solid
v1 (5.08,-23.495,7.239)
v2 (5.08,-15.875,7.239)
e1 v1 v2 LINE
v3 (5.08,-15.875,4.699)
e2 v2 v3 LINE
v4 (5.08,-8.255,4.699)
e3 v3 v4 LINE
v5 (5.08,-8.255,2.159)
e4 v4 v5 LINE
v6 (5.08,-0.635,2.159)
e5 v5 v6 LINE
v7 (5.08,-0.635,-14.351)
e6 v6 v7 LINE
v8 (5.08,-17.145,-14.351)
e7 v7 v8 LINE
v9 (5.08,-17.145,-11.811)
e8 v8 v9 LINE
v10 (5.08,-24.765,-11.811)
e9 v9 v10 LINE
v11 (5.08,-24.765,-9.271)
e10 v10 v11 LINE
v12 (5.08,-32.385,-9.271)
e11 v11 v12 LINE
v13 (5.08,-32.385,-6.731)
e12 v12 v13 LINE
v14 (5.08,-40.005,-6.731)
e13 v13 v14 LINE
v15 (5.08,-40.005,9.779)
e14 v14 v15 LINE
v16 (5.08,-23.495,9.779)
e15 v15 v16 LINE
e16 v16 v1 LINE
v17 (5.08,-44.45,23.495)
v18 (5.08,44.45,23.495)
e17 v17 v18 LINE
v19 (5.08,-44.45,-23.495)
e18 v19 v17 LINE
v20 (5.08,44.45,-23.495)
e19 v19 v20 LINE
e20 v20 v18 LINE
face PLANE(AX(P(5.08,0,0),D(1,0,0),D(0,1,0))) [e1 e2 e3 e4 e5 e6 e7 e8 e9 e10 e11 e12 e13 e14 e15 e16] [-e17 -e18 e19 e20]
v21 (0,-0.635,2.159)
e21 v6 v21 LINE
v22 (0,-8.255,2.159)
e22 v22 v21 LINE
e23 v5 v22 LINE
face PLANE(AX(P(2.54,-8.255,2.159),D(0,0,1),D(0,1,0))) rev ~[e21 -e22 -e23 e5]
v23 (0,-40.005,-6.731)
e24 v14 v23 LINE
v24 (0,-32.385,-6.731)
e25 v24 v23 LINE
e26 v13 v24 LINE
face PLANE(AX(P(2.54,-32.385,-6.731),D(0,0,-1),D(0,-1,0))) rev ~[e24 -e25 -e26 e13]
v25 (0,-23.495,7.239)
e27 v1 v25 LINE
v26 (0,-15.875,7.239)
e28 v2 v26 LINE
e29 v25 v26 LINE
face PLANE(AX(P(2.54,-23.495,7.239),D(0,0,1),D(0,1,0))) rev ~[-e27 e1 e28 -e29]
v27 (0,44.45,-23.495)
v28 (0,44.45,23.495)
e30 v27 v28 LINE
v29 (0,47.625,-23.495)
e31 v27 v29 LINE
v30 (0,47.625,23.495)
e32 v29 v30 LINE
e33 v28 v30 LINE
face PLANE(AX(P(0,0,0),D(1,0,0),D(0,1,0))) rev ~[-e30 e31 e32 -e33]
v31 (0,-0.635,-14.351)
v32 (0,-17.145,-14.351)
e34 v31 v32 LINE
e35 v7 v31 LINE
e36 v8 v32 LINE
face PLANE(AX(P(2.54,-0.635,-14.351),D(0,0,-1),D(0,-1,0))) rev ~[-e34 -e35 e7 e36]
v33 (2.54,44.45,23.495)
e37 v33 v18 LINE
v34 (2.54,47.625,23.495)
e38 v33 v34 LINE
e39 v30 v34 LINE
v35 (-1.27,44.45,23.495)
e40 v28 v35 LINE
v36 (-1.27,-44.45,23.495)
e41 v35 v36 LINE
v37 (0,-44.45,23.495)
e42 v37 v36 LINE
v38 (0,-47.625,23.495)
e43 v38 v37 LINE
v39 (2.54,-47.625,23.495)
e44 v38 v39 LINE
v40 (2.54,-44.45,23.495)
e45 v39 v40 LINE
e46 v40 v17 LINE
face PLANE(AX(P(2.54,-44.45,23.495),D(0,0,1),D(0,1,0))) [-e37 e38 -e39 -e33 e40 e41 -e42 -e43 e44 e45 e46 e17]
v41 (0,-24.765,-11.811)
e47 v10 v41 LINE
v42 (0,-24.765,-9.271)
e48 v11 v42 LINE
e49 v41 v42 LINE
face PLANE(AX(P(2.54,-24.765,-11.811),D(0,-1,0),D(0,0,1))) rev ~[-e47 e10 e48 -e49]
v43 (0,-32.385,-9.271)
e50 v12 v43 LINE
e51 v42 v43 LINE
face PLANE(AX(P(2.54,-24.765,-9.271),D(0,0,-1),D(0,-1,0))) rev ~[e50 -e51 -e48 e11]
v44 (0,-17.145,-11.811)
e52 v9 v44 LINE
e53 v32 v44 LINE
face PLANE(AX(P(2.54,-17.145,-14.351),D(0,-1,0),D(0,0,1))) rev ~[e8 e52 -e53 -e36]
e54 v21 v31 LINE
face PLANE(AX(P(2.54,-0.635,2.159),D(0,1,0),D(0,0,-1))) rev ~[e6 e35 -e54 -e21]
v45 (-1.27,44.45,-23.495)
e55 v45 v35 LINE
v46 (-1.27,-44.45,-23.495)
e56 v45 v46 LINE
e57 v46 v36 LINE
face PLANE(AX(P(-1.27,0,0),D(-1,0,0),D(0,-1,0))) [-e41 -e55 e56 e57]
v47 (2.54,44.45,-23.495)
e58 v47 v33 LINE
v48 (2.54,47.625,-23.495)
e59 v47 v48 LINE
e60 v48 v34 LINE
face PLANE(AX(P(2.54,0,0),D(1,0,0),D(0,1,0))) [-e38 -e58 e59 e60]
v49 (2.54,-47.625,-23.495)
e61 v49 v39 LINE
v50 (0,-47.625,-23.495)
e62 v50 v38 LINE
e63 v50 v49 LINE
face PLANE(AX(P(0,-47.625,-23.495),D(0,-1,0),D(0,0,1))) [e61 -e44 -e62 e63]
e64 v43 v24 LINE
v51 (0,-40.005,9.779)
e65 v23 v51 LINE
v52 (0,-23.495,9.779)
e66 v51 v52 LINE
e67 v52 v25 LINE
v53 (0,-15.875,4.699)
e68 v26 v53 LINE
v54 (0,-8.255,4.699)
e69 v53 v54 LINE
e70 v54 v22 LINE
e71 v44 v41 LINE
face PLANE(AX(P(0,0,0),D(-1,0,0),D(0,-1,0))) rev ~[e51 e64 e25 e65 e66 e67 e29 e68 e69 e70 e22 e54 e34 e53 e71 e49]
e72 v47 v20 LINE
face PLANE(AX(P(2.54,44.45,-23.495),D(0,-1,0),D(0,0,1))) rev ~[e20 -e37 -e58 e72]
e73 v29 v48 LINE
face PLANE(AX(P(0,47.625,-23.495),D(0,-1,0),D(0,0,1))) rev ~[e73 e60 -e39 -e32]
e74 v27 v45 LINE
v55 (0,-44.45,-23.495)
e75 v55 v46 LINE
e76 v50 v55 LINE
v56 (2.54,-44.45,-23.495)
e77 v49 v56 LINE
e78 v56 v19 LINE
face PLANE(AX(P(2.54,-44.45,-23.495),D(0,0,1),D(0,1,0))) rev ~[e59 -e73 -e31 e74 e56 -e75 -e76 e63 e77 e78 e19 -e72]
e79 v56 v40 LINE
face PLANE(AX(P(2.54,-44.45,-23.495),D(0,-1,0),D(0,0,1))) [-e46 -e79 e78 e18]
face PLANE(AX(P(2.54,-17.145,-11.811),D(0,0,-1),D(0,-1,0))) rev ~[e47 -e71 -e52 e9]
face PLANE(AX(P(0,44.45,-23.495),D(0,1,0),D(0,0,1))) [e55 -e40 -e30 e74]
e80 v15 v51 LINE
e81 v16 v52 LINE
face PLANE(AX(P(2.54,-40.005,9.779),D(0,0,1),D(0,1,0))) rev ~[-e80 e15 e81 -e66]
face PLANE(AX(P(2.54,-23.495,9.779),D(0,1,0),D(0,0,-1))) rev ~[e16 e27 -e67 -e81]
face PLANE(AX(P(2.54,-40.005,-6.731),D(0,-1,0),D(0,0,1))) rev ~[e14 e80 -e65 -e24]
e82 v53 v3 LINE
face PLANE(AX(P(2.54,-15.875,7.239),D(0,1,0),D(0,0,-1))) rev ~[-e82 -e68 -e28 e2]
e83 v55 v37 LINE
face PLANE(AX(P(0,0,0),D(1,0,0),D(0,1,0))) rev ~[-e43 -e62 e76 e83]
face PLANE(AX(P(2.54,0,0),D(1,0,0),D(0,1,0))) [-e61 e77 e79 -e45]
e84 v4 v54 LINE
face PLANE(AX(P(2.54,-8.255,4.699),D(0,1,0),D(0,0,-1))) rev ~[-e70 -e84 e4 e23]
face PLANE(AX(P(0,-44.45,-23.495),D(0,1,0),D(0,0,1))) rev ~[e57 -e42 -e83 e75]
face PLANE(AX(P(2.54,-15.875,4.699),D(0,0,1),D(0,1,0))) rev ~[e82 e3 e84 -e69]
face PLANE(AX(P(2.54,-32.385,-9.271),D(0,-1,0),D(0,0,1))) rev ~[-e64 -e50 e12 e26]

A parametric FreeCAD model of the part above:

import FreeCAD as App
import Part
import Sketcher

V = App.Vector
Q = App.Units.Quantity


def add_polygon(sketch, points):
    """Adds a closed chain of lines whose ends are joined by coincident constraints."""
    first, n = sketch.GeometryCount, len(points)
    for a, b in zip(points, points[1:] + points[:1]):
        sketch.addGeometry(Part.LineSegment(App.Vector(*a, 0), App.Vector(*b, 0)), False)
    for i in range(n):
        sketch.addConstraint(Sketcher.Constraint("Coincident", first + i, 2, first + (i + 1) % n, 1))

doc = App.newDocument("Part")
body = doc.addObject("PartDesign::Body", "Body")

sketch1 = doc.addObject("Sketcher::SketchObject", "Sketch")
body.addObject(sketch1)
sketch1.AttachmentSupport = (doc.YZ_Plane, [""])
sketch1.MapMode = "FlatFace"
add_polygon(sketch1, [(-47.6, 23.5), (-47.6, -23.5), (47.6, -23.5), (47.6, 23.5)])
add_polygon(sketch1, [(-8.3, 2.2), (-0.6, 2.2), (-0.6, -14.4), (-17.1, -14.4), (-17.1, -11.8), (-24.8, -11.8), (-24.8, -9.3), (-32.4, -9.3), (-32.4, -6.7), (-40, -6.7), (-40, 9.8), (-23.5, 9.8), (-23.5, 7.2), (-15.9, 7.2), (-15.9, 4.7), (-8.3, 4.7)])
sketch1.addConstraint(Sketcher.Constraint("Vertical", 0))
sketch1.addConstraint(Sketcher.Constraint("Horizontal", 1))
sketch1.addConstraint(Sketcher.Constraint("Vertical", 2))
sketch1.addConstraint(Sketcher.Constraint("Horizontal", 3))
sketch1.addConstraint(Sketcher.Constraint("Horizontal", 4))
sketch1.addConstraint(Sketcher.Constraint("Vertical", 5))
sketch1.addConstraint(Sketcher.Constraint("Horizontal", 6))
sketch1.addConstraint(Sketcher.Constraint("Vertical", 7))
sketch1.addConstraint(Sketcher.Constraint("Horizontal", 8))
sketch1.addConstraint(Sketcher.Constraint("Vertical", 9))
sketch1.addConstraint(Sketcher.Constraint("Horizontal", 10))
sketch1.addConstraint(Sketcher.Constraint("Vertical", 11))
sketch1.addConstraint(Sketcher.Constraint("Horizontal", 12))
sketch1.addConstraint(Sketcher.Constraint("Vertical", 13))
sketch1.addConstraint(Sketcher.Constraint("Horizontal", 14))
sketch1.addConstraint(Sketcher.Constraint("Vertical", 15))
sketch1.addConstraint(Sketcher.Constraint("Horizontal", 16))
sketch1.addConstraint(Sketcher.Constraint("Vertical", 17))
sketch1.addConstraint(Sketcher.Constraint("Horizontal", 18))
sketch1.addConstraint(Sketcher.Constraint("Vertical", 19))
sketch1.addConstraint(Sketcher.Constraint("Symmetric", 0, 2, 2, 2, -1, 1))
sketch1.addConstraint(Sketcher.Constraint("Equal", 4, 8))
sketch1.addConstraint(Sketcher.Constraint("Equal", 8, 10))
sketch1.addConstraint(Sketcher.Constraint("Equal", 10, 12))
sketch1.addConstraint(Sketcher.Constraint("Equal", 6, 14))
sketch1.addConstraint(Sketcher.Constraint("Equal", 12, 16))
sketch1.addConstraint(Sketcher.Constraint("Equal", 14, 5))
sketch1.addConstraint(Sketcher.Constraint("Equal", 7, 9))
sketch1.addConstraint(Sketcher.Constraint("Equal", 9, 11))
sketch1.addConstraint(Sketcher.Constraint("Equal", 5, 13))
sketch1.addConstraint(Sketcher.Constraint("Equal", 11, 15))
sketch1.addConstraint(Sketcher.Constraint("Equal", 15, 17))
sketch1.addConstraint(Sketcher.Constraint("DistanceX", 4, 1, 4, 2, Q("0.3 in")))
sketch1.addConstraint(Sketcher.Constraint("DistanceY", 7, 1, 7, 2, Q("0.1 in")))
sketch1.addConstraint(Sketcher.Constraint("DistanceX", 1, 1, 1, 2, Q("3.75 in")))
sketch1.addConstraint(Sketcher.Constraint("DistanceX", 6, 2, 6, 1, Q("0.65 in")))
sketch1.addConstraint(Sketcher.Constraint("DistanceY", 0, 2, 0, 1, Q("1.85 in")))
sketch1.addConstraint(Sketcher.Constraint("DistanceX", 4, 2, 2, 2, Q("1.9 in")))
sketch1.addConstraint(Sketcher.Constraint("DistanceY", 4, 2, 3, 2, Q("0.84 in")))
pad1 = doc.addObject("PartDesign::Pad", "Pad")
body.addObject(pad1)
pad1.Profile = sketch1
pad1.Length = Q("0.1 in")

sketch2 = doc.addObject("Sketcher::SketchObject", "Sketch001")
body.addObject(sketch2)
sketch2.AttachmentSupport = (doc.YZ_Plane, [""])
sketch2.MapMode = "FlatFace"
add_polygon(sketch2, [(44, 23), (44, -23), (-44, -23), (-44, 23)])
sketch2.addConstraint(Sketcher.Constraint("Vertical", 0))
sketch2.addConstraint(Sketcher.Constraint("Horizontal", 1))
sketch2.addConstraint(Sketcher.Constraint("Vertical", 2))
sketch2.addConstraint(Sketcher.Constraint("Horizontal", 3))
sketch2.addConstraint(Sketcher.Constraint("Symmetric", 0, 2, 2, 2, -1, 1))
sketch2.addConstraint(Sketcher.Constraint("DistanceX", 1, 2, 1, 1, Q("3.5 in")))
sketch2.addConstraint(Sketcher.Constraint("DistanceY", 0, 2, 0, 1, Q("1.85 in")))
pad2 = doc.addObject("PartDesign::Pad", "Pad001")
body.addObject(pad2)
pad2.Profile = sketch2
pad2.Length = Q("0.05 in")
pad2.Reversed = True

sketch3 = doc.addObject("Sketcher::SketchObject", "Sketch002")
body.addObject(sketch3)
sketch3.AttachmentSupport = (doc.YZ_Plane, [""])
sketch3.MapMode = "FlatFace"
sketch3.AttachmentOffset = App.Placement(V(0, 0, 0.1 * 25.4), App.Rotation())
add_polygon(sketch3, [(-44.5, 23.5), (-44.5, -23.5), (44.5, -23.5), (44.5, 23.5)])
add_polygon(sketch3, [(-15.9, 7.2), (-15.9, 4.7), (-8.3, 4.7), (-8.3, 2.2), (-0.6, 2.2), (-0.6, -14.4), (-17.1, -14.4), (-17.1, -11.8), (-24.8, -11.8), (-24.8, -9.3), (-32.4, -9.3), (-32.4, -6.7), (-40, -6.7), (-40, 9.8), (-23.5, 9.8), (-23.5, 7.2)])
sketch3.addConstraint(Sketcher.Constraint("Vertical", 0))
sketch3.addConstraint(Sketcher.Constraint("Horizontal", 1))
sketch3.addConstraint(Sketcher.Constraint("Vertical", 2))
sketch3.addConstraint(Sketcher.Constraint("Horizontal", 3))
sketch3.addConstraint(Sketcher.Constraint("Vertical", 4))
sketch3.addConstraint(Sketcher.Constraint("Horizontal", 5))
sketch3.addConstraint(Sketcher.Constraint("Vertical", 6))
sketch3.addConstraint(Sketcher.Constraint("Horizontal", 7))
sketch3.addConstraint(Sketcher.Constraint("Vertical", 8))
sketch3.addConstraint(Sketcher.Constraint("Horizontal", 9))
sketch3.addConstraint(Sketcher.Constraint("Vertical", 10))
sketch3.addConstraint(Sketcher.Constraint("Horizontal", 11))
sketch3.addConstraint(Sketcher.Constraint("Vertical", 12))
sketch3.addConstraint(Sketcher.Constraint("Horizontal", 13))
sketch3.addConstraint(Sketcher.Constraint("Vertical", 14))
sketch3.addConstraint(Sketcher.Constraint("Horizontal", 15))
sketch3.addConstraint(Sketcher.Constraint("Vertical", 16))
sketch3.addConstraint(Sketcher.Constraint("Horizontal", 17))
sketch3.addConstraint(Sketcher.Constraint("Vertical", 18))
sketch3.addConstraint(Sketcher.Constraint("Horizontal", 19))
sketch3.addConstraint(Sketcher.Constraint("Symmetric", 0, 2, 2, 2, -1, 1))
sketch3.addConstraint(Sketcher.Constraint("Equal", 5, 7))
sketch3.addConstraint(Sketcher.Constraint("Equal", 7, 11))
sketch3.addConstraint(Sketcher.Constraint("Equal", 11, 13))
sketch3.addConstraint(Sketcher.Constraint("Equal", 13, 15))
sketch3.addConstraint(Sketcher.Constraint("Equal", 9, 17))
sketch3.addConstraint(Sketcher.Constraint("Equal", 4, 6))
sketch3.addConstraint(Sketcher.Constraint("Equal", 17, 8))
sketch3.addConstraint(Sketcher.Constraint("Equal", 6, 10))
sketch3.addConstraint(Sketcher.Constraint("Equal", 10, 12))
sketch3.addConstraint(Sketcher.Constraint("Equal", 12, 14))
sketch3.addConstraint(Sketcher.Constraint("Equal", 8, 16))
sketch3.addConstraint(Sketcher.Constraint("DistanceX", 1, 1, 1, 2, Q("3.5 in")))
sketch3.addConstraint(Sketcher.Constraint("DistanceX", 5, 1, 5, 2, Q("0.3 in")))
sketch3.addConstraint(Sketcher.Constraint("DistanceY", 4, 2, 4, 1, Q("0.1 in")))
sketch3.addConstraint(Sketcher.Constraint("DistanceX", 9, 2, 9, 1, Q("0.65 in")))
sketch3.addConstraint(Sketcher.Constraint("DistanceY", 0, 2, 0, 1, Q("1.85 in")))
sketch3.addConstraint(Sketcher.Constraint("DistanceY", 4, 2, 3, 2, Q("0.74 in")))
sketch3.addConstraint(Sketcher.Constraint("DistanceX", 4, 2, -1, 1, Q("0.625 in")))
pad3 = doc.addObject("PartDesign::Pad", "Pad002")
body.addObject(pad3)
pad3.Profile = sketch3
pad3.Length = Q("0.1 in")

doc.recompute()
